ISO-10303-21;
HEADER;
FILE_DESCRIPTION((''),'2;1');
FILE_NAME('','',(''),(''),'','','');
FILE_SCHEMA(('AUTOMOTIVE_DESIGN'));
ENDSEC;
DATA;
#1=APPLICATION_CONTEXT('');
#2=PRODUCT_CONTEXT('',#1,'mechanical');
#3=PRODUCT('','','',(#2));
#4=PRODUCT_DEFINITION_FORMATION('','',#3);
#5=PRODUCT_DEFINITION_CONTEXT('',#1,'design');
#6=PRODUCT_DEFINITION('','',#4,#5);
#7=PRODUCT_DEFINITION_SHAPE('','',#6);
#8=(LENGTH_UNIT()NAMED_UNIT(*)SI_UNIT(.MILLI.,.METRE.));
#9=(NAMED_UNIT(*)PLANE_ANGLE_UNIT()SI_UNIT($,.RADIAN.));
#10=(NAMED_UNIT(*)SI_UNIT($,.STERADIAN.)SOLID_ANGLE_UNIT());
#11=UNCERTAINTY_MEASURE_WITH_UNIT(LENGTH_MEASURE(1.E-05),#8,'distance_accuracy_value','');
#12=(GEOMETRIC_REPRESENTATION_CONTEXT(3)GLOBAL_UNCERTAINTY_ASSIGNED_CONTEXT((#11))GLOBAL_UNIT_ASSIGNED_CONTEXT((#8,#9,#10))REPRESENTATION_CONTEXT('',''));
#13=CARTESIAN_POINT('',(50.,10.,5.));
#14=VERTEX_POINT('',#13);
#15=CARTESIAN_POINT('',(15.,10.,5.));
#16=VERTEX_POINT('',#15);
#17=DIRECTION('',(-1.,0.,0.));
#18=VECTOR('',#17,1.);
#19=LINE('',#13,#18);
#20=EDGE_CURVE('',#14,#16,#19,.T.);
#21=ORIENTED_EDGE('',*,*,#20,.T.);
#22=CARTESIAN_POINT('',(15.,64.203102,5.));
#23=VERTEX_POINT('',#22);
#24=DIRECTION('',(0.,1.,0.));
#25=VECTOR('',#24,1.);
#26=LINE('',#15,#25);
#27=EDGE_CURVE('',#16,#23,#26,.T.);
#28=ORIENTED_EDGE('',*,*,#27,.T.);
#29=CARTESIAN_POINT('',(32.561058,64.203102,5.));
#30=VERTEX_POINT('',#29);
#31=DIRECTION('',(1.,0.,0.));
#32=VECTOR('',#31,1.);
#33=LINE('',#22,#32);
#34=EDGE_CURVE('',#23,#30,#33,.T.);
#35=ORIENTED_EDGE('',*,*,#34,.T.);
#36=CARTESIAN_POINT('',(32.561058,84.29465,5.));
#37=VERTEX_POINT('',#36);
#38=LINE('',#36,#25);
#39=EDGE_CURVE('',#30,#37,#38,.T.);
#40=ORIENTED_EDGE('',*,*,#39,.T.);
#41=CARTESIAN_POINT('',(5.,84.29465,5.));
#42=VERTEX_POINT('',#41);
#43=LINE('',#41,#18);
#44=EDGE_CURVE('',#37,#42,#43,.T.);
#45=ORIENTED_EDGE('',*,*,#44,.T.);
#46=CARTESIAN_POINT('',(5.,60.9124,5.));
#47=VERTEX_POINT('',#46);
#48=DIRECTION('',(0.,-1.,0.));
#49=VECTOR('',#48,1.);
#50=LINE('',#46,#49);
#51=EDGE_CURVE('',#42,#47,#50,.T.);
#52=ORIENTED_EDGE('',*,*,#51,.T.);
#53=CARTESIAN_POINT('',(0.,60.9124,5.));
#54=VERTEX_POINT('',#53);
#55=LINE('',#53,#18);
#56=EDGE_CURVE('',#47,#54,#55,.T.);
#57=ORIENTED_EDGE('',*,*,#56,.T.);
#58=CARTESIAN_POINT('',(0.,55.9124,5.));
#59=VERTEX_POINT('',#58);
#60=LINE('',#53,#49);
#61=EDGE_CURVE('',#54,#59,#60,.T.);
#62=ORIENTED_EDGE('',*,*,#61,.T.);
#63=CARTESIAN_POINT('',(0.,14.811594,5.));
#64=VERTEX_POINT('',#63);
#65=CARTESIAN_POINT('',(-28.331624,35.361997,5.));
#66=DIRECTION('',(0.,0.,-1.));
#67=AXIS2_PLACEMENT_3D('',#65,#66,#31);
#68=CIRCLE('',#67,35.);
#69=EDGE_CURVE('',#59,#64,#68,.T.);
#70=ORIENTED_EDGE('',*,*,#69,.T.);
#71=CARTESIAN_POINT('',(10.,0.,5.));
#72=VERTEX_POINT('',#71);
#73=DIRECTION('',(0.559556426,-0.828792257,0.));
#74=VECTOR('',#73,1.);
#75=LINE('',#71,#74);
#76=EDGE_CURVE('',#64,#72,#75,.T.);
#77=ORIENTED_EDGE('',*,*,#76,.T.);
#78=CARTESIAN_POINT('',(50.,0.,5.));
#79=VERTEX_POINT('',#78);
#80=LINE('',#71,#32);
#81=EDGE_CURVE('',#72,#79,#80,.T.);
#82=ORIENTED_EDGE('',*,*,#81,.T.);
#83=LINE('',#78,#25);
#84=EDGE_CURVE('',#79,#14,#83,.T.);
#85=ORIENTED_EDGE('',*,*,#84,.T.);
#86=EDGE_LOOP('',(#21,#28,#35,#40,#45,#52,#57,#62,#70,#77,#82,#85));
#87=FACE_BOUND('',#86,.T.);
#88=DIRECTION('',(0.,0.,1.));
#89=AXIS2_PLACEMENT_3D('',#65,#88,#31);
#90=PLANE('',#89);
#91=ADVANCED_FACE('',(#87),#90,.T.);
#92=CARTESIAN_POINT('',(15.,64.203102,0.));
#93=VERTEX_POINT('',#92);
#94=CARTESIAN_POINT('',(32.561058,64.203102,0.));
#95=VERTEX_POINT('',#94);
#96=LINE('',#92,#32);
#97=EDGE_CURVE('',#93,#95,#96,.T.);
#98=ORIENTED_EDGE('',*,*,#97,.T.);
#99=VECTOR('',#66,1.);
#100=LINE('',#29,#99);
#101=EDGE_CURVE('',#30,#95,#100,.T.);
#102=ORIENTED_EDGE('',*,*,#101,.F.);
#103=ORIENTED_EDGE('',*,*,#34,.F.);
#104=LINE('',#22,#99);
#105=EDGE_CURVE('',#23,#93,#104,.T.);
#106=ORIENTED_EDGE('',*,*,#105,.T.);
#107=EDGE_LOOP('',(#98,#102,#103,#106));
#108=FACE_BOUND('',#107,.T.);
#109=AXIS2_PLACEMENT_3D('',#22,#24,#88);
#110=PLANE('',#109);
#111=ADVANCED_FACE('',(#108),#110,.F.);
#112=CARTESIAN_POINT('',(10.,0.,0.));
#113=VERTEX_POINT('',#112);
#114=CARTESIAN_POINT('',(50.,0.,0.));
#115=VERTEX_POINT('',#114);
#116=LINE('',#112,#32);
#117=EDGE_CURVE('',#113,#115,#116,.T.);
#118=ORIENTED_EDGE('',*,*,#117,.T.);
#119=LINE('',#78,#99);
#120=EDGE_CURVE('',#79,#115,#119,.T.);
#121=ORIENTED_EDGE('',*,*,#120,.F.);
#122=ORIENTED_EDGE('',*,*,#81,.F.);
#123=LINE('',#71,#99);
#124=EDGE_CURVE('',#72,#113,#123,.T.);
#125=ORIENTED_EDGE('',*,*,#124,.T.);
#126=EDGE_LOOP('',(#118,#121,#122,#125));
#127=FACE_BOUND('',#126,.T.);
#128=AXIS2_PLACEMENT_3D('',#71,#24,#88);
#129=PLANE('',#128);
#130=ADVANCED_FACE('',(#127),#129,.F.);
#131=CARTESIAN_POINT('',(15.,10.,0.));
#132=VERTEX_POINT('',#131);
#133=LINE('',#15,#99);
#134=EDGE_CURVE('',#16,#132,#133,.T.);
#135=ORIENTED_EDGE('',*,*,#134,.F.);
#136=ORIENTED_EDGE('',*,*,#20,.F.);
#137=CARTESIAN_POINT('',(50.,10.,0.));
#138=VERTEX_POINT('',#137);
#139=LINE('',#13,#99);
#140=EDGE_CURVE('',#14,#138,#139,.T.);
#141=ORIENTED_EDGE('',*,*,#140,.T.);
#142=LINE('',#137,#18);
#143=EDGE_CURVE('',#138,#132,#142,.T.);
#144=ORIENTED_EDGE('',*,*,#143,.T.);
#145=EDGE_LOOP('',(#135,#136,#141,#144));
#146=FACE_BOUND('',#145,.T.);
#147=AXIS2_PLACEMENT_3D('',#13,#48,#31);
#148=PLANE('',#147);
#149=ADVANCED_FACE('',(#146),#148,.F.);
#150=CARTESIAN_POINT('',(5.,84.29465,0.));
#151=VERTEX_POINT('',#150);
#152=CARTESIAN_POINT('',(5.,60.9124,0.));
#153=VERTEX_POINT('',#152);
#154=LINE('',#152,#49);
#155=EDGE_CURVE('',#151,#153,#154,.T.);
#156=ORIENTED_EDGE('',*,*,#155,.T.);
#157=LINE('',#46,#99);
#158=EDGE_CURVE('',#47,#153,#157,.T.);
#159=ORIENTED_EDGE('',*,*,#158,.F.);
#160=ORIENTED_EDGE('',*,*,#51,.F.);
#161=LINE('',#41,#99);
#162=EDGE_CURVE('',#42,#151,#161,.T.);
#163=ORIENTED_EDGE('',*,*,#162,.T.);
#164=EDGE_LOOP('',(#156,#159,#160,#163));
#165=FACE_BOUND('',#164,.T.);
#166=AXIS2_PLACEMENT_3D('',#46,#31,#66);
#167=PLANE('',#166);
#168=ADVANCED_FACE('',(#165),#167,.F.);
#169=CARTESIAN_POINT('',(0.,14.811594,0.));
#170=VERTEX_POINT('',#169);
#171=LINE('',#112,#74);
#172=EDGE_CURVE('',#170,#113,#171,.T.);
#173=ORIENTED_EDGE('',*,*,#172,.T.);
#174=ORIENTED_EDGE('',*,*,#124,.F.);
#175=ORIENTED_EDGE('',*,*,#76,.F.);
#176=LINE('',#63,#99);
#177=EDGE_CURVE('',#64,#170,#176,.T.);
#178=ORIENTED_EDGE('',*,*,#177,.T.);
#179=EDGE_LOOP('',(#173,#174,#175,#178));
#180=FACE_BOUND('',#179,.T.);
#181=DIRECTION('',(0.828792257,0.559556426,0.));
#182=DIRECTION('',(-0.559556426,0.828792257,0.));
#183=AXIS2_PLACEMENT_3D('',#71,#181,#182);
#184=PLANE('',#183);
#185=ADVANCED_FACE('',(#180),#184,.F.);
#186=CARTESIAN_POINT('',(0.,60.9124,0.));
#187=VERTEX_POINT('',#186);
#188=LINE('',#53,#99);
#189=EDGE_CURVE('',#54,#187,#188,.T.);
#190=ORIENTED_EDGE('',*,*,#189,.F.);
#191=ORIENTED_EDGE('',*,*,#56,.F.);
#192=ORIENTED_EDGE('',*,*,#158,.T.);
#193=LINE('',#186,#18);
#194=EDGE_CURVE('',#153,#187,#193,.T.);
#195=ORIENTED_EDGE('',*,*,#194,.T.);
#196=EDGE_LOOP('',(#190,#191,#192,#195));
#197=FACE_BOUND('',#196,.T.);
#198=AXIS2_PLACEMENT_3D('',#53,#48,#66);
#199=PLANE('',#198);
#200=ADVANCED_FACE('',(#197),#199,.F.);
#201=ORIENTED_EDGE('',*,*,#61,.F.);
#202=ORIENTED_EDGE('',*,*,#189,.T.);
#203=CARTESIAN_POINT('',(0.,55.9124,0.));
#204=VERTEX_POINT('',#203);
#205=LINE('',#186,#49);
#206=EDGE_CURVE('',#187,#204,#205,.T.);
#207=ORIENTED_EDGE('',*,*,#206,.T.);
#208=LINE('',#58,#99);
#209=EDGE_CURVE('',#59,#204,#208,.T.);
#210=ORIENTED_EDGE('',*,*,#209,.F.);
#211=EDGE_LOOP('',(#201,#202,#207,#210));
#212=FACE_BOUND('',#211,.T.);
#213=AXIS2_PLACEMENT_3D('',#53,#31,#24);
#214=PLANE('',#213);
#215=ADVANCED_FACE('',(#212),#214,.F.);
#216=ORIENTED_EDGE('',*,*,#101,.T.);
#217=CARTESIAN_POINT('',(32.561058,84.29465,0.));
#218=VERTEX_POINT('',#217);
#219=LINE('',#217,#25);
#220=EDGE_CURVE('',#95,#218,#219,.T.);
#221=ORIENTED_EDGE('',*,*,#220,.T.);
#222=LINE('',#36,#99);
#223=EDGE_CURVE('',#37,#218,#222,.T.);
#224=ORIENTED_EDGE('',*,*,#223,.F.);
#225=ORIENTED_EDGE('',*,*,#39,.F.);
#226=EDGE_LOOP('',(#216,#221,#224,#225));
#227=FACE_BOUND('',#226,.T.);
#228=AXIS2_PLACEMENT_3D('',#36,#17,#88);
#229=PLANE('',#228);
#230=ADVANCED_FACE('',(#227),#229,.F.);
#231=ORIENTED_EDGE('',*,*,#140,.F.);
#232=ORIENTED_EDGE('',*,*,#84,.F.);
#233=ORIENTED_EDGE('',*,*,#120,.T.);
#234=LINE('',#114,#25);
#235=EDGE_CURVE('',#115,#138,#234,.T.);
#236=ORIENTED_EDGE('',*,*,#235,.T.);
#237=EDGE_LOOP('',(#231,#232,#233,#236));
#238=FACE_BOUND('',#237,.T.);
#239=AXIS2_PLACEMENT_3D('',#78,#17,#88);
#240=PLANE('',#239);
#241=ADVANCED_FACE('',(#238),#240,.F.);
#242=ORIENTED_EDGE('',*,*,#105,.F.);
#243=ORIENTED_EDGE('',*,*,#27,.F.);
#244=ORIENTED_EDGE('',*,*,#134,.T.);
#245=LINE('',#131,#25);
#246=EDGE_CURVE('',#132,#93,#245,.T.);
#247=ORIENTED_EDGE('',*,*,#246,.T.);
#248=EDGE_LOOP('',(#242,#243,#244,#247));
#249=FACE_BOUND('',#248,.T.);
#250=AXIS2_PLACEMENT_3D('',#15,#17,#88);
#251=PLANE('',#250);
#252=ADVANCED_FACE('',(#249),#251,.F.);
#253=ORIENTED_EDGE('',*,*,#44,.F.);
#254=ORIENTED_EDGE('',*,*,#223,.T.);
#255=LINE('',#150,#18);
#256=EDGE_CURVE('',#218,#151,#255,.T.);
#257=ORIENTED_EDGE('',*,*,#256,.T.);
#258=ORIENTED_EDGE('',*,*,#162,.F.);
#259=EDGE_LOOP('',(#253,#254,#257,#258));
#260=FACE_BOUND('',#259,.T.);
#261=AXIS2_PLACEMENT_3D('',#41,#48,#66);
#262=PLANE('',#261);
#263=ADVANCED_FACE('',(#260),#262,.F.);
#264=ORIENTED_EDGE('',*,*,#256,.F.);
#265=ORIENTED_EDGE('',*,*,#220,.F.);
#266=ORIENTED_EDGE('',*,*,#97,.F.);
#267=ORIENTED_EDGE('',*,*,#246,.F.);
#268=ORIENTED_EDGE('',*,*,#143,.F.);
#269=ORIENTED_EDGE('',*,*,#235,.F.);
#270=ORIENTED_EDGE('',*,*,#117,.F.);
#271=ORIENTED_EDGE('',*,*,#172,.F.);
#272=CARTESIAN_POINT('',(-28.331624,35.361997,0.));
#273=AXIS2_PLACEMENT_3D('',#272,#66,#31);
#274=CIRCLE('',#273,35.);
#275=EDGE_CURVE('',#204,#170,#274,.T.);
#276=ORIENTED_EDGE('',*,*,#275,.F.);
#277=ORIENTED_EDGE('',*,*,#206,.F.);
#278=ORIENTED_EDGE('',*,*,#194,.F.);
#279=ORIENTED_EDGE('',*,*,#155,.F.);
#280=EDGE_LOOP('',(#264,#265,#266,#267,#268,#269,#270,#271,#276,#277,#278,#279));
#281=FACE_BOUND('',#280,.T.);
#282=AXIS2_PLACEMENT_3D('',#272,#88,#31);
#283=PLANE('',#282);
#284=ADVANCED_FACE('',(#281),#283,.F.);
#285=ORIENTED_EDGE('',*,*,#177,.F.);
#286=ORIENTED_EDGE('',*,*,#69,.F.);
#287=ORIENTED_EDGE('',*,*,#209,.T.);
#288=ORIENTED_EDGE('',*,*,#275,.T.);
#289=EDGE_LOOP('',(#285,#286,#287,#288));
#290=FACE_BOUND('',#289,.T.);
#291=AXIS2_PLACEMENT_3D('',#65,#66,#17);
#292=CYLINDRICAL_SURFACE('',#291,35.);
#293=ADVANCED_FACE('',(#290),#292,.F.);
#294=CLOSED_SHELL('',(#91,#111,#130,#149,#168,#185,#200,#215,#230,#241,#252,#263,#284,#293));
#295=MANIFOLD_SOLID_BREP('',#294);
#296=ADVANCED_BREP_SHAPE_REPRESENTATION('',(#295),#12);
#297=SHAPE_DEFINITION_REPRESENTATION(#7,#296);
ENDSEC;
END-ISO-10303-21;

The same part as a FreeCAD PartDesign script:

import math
import FreeCAD as App
import Part
import Sketcher

doc = App.newDocument("Part")
body = doc.addObject("PartDesign::Body", "Body")

# Sketch on XY plane
sketch1 = body.newObject("Sketcher::SketchObject", "Sketch")
sketch1.AttachmentSupport = (doc.getObject("XY_Plane"), [""])
sketch1.MapMode = "FlatFace"
sketch1.addGeometry([
    Part.LineSegment(App.Vector(50, 0, 0), App.Vector(50, 10, 0)),  # 0
    Part.LineSegment(App.Vector(50, 10, 0), App.Vector(15, 10, 0)),  # 1
    Part.LineSegment(App.Vector(15, 10, 0), App.Vector(15, 64.203102, 0)),  # 2
    Part.LineSegment(App.Vector(15, 64.203102, 0), App.Vector(32.561058, 64.203102, 0)),  # 3
    Part.LineSegment(App.Vector(32.561058, 64.203102, 0), App.Vector(32.561058, 84.29465, 0)),  # 4
    Part.LineSegment(App.Vector(32.561058, 84.29465, 0), App.Vector(5, 84.29465, 0)),  # 5
    Part.LineSegment(App.Vector(5, 84.29465, 0), App.Vector(5, 60.9124, 0)),  # 6
    Part.LineSegment(App.Vector(5, 60.9124, 0), App.Vector(0, 60.9124, 0)),  # 7
    Part.LineSegment(App.Vector(0, 60.9124, 0), App.Vector(0, 55.9124, 0)),  # 8
    Part.ArcOfCircle(Part.Circle(App.Vector(-28.331624, 35.361997, 0), App.Vector(0, 0, 1), 35), math.radians(-35.955333), math.radians(35.955333)),  # 9
    Part.LineSegment(App.Vector(0, 14.811594, 0), App.Vector(10, 0, 0)),  # 10
    Part.LineSegment(App.Vector(10, 0, 0), App.Vector(50, 0, 0)),  # 11
], False)
sketch1.addConstraint([
    Sketcher.Constraint("Coincident", 0, 2, 1, 1),
    Sketcher.Constraint("Coincident", 1, 2, 2, 1),
    Sketcher.Constraint("Coincident", 2, 2, 3, 1),
    Sketcher.Constraint("Coincident", 3, 2, 4, 1),
    Sketcher.Constraint("Coincident", 4, 2, 5, 1),
    Sketcher.Constraint("Coincident", 5, 2, 6, 1),
    Sketcher.Constraint("Coincident", 6, 2, 7, 1),
    Sketcher.Constraint("Coincident", 7, 2, 8, 1),
    Sketcher.Constraint("Coincident", 8, 2, 9, 2),
    Sketcher.Constraint("Coincident", 9, 1, 10, 1),
    Sketcher.Constraint("Coincident", 10, 2, 11, 1),
    Sketcher.Constraint("Coincident", 11, 2, 0, 1),
    Sketcher.Constraint("Vertical", 0),
    Sketcher.Constraint("Horizontal", 1),
    Sketcher.Constraint("Vertical", 2),
    Sketcher.Constraint("Horizontal", 3),
    Sketcher.Constraint("Vertical", 4),
    Sketcher.Constraint("Horizontal", 5),
    Sketcher.Constraint("Vertical", 6),
    Sketcher.Constraint("Horizontal", 7),
    Sketcher.Constraint("Vertical", 8),
    Sketcher.Constraint("Horizontal", 11),
    Sketcher.Constraint("PointOnObject", 7, 2, -2),
    Sketcher.Constraint("PointOnObject", 9, 1, -2),
    Sketcher.Constraint("PointOnObject", 10, 2, -1),
    Sketcher.Constraint("Equal", 7, 8),
    Sketcher.Constraint("Radius", 9, 35.0),
    Sketcher.Constraint("DistanceX", 1, 2, 1, 1, 35.0),
    Sketcher.Constraint("DistanceX", 7, 2, 7, 1, 5.0),
    Sketcher.Constraint("DistanceX", 11, 1, 11, 2, 40.0),
    Sketcher.Constraint("DistanceY", 0, 1, 0, 2, 10.0),
    Sketcher.Constraint("DistanceX", -1, 1, 0, 2, 50.0),
    Sketcher.Constraint("DistanceY", 2, 1, 2, 2, 54.203102),
    Sketcher.Constraint("Distance", 10, 17.871299),
    Sketcher.Constraint("DistanceY", 4, 1, 4, 2, 20.091549),
    Sketcher.Constraint("DistanceY", 6, 2, 6, 1, 23.382251),
    Sketcher.Constraint("DistanceX", 3, 1, 3, 2, 17.561058),
])
pad1 = body.newObject("PartDesign::Pad", "Pad")
pad1.Profile = sketch1
pad1.Length = 5

doc.recompute()
